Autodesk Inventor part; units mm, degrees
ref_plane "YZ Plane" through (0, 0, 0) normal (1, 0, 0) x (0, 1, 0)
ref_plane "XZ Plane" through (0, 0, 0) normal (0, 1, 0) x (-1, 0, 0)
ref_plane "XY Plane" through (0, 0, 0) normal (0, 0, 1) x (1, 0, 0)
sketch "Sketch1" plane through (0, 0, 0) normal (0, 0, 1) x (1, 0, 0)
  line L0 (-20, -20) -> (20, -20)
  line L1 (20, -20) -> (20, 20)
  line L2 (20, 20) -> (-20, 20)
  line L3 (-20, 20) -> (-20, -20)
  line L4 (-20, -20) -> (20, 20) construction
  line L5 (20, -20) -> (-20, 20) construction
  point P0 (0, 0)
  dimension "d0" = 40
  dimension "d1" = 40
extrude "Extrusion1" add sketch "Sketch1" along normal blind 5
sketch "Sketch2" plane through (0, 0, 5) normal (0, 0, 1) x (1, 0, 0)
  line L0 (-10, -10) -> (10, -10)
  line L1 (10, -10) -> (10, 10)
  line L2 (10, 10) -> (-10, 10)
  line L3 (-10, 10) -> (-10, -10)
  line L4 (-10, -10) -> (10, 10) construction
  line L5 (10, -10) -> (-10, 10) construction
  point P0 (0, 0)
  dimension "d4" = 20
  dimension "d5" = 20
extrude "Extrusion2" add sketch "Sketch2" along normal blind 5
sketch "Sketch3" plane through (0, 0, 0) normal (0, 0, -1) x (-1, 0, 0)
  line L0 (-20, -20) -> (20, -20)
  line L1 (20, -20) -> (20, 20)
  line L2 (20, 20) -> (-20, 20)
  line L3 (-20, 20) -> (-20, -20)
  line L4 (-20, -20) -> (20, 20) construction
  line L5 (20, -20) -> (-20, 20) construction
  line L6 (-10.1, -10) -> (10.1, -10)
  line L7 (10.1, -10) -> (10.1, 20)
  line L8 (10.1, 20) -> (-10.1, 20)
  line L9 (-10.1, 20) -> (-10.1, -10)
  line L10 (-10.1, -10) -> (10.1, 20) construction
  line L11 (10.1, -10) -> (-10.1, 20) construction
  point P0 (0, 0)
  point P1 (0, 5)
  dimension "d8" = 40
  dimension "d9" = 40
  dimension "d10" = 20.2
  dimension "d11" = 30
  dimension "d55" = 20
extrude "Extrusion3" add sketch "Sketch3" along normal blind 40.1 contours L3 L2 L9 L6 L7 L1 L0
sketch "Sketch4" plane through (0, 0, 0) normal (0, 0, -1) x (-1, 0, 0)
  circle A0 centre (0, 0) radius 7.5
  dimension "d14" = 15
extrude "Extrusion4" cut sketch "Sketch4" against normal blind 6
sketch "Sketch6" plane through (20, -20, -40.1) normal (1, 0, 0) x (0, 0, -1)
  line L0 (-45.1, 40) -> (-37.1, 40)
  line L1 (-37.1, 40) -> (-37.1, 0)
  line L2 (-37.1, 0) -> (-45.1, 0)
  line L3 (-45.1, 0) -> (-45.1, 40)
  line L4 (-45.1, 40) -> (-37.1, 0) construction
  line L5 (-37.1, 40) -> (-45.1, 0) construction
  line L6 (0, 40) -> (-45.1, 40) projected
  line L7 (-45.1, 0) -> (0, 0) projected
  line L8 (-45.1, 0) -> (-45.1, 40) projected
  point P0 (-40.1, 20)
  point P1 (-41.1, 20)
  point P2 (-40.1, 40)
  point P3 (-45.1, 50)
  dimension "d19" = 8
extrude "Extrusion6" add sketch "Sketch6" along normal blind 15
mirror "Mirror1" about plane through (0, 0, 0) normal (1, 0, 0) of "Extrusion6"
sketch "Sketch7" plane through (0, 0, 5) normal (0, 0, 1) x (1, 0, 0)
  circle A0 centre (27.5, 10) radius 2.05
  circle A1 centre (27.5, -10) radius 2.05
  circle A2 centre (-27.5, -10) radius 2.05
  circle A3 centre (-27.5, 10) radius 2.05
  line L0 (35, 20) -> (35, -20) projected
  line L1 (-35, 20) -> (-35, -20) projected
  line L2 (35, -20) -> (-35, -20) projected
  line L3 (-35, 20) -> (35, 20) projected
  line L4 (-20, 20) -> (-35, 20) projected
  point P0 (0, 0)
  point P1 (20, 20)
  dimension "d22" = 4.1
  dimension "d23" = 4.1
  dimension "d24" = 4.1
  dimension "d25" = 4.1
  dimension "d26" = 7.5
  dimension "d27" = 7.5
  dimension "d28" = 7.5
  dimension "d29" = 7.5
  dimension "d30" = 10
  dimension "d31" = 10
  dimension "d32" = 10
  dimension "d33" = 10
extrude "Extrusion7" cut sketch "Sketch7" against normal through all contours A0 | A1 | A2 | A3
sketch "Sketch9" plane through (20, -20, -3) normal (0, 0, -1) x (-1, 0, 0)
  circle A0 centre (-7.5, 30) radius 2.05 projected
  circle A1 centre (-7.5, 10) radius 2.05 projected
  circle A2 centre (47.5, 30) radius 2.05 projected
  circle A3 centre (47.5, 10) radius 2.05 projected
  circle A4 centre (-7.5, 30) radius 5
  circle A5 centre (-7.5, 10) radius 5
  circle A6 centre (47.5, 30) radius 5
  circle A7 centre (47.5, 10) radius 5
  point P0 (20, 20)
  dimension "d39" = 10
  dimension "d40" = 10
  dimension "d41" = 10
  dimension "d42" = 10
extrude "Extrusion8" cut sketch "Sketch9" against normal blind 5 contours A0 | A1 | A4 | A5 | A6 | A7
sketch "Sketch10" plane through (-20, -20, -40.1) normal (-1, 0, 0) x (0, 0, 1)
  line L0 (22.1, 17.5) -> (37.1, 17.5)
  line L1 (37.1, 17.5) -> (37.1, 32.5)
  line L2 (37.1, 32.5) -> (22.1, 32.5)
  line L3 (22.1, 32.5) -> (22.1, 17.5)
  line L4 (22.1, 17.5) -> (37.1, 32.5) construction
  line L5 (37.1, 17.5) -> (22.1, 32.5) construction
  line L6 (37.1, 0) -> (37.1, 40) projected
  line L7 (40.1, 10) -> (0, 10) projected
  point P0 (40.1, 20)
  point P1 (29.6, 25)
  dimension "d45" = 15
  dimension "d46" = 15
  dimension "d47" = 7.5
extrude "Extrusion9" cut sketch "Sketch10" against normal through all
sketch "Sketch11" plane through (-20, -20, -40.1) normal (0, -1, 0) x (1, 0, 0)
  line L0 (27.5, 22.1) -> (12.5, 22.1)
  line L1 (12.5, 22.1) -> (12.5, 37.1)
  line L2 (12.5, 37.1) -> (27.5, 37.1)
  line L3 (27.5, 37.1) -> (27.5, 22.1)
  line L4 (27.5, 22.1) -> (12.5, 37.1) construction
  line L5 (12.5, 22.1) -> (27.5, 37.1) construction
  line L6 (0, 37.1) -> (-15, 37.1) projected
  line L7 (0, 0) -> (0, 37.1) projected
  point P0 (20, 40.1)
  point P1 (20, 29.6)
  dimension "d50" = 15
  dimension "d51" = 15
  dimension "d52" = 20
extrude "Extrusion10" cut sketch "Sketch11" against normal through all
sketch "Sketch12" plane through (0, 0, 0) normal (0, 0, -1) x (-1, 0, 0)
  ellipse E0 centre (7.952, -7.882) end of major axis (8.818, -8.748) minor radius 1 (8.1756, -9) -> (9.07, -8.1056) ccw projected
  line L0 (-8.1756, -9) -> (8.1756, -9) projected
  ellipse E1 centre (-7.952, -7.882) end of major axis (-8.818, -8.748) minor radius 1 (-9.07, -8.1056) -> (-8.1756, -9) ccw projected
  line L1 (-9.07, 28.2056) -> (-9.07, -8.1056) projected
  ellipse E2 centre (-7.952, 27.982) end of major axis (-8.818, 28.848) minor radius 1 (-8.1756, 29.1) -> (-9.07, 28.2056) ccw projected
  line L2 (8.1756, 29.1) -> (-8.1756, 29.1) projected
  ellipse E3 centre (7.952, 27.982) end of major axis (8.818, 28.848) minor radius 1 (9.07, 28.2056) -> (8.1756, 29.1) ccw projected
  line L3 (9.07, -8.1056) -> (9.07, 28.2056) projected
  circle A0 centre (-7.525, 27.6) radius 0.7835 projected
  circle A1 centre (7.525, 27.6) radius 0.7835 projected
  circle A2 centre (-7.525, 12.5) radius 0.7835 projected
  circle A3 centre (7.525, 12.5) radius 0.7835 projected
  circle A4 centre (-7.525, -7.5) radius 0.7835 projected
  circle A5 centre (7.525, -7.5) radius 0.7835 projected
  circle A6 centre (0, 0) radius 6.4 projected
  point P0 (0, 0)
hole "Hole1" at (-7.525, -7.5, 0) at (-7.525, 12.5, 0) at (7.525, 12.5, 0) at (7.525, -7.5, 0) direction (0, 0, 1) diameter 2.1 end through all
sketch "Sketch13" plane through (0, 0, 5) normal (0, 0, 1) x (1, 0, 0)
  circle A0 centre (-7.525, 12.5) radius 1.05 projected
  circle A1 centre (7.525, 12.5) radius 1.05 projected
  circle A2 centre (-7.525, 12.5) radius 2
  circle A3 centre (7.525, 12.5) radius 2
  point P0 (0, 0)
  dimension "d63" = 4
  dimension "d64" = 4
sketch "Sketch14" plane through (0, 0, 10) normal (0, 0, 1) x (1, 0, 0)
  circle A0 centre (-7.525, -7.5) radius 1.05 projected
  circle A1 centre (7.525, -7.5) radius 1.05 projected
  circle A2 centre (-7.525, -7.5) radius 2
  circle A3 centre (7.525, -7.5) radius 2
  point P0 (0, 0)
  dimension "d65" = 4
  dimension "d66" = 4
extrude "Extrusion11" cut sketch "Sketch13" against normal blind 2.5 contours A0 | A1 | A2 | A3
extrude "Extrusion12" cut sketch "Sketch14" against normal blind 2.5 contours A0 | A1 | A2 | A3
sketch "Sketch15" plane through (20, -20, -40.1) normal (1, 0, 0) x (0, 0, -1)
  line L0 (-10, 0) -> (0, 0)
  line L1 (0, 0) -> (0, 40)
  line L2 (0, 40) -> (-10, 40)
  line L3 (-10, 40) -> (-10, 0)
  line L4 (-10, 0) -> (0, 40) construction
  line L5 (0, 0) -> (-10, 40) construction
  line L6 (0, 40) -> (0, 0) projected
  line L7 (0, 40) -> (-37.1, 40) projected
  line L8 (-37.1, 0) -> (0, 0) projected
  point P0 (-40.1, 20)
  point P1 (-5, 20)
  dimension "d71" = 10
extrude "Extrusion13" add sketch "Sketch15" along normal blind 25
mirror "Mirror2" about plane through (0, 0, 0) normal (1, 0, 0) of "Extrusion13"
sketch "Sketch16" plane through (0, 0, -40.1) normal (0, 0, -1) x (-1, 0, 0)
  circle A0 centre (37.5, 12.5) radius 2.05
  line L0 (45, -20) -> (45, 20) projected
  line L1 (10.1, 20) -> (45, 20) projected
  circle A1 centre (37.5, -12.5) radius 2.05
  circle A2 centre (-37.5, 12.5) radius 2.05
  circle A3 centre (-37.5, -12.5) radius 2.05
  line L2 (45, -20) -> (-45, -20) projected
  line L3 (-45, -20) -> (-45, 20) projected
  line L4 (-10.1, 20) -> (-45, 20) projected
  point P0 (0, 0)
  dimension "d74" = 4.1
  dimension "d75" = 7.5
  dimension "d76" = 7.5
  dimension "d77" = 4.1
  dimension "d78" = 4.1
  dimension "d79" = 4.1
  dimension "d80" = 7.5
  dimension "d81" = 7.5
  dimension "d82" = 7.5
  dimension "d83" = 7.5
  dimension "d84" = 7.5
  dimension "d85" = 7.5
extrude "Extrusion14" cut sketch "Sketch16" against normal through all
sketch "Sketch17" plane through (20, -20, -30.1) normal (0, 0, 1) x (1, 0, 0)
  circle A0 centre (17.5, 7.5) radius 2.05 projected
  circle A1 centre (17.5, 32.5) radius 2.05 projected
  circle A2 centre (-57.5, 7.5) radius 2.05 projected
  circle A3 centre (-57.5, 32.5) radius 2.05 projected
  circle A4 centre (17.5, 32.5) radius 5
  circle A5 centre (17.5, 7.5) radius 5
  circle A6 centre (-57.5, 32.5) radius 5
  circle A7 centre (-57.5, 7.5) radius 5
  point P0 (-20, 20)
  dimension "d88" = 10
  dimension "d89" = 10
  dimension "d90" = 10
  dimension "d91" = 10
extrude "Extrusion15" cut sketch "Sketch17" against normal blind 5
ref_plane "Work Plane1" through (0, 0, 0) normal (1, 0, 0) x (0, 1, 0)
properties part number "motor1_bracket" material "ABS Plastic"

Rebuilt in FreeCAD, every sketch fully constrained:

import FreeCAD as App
import Part
import Sketcher

V = App.Vector

doc = App.newDocument("Part")
params = doc.addObject("Spreadsheet::Sheet", "Params")
for row, (alias, value) in enumerate([
    ("sketch1_width", "40 mm"),
    ("pad1_length", "5 mm"),
    ("sketch2_width", "20 mm"),
    ("pad2_length", "5 mm"),
    ("sketch3_width", "40 mm"),
    ("sketch3_height", "30 mm"),
    ("sketch3_width2", "20.2 mm"),
    ("pad3_length", "40.1 mm"),
    ("sketch4_diameter", "15 mm"),
    ("pocket1_length", "6 mm"),
    ("sketch5_height", "8 mm"),
    ("sketch5_width", "40 mm"),
    ("pad4_length", "15 mm"),
    ("sketch6_diameter", "4.1 mm"),
    ("sketch7_diameter", "10 mm"),
    ("sketch7_diameter2", "4.1 mm"),
    ("pocket3_length", "5 mm"),
    ("sketch8_width", "15 mm"),
    ("sketch9_width", "15 mm"),
    ("sketch10_diameter", "2.1 mm"),
    ("hole_diameter", "2.1 mm"),
    ("sketch11_diameter", "4 mm"),
    ("pocket6_length", "2.5 mm"),
    ("sketch12_diameter", "4 mm"),
    ("pocket7_length", "2.5 mm"),
    ("sketch13_height", "10 mm"),
    ("sketch13_width", "40 mm"),
    ("pad5_length", "25 mm"),
    ("sketch14_diameter", "4.1 mm"),
    ("sketch15_diameter", "10 mm"),
    ("sketch15_diameter2", "4.1 mm"),
    ("pocket9_length", "5 mm"),
], start=1):
    params.set(f"A{row}", alias)
    params.set(f"B{row}", "=" + value)
    params.setAlias(f"B{row}", alias)

body = doc.addObject("PartDesign::Body", "Body")

# Sketch on XY plane
sketch1 = doc.addObject("Sketcher::SketchObject", "Sketch")
body.addObject(sketch1)
sketch1.AttachmentSupport = (doc.XY_Plane, [""])
sketch1.MapMode = "FlatFace"
sketch1.addGeometry(Part.LineSegment(V(-20, 20, 0), V(-20, -20, 0)), False)
sketch1.addGeometry(Part.LineSegment(V(-20, -20, 0), V(20, -20, 0)), False)
sketch1.addGeometry(Part.LineSegment(V(20, -20, 0), V(20, 20, 0)), False)
sketch1.addGeometry(Part.LineSegment(V(20, 20, 0), V(-20, 20, 0)), False)
sketch1.addConstraint(Sketcher.Constraint("Coincident", 0, 2, 1, 1))
sketch1.addConstraint(Sketcher.Constraint("Coincident", 1, 2, 2, 1))
sketch1.addConstraint(Sketcher.Constraint("Coincident", 2, 2, 3, 1))
sketch1.addConstraint(Sketcher.Constraint("Coincident", 3, 2, 0, 1))
sketch1.addConstraint(Sketcher.Constraint("Vertical", 0))
sketch1.addConstraint(Sketcher.Constraint("Horizontal", 1))
sketch1.addConstraint(Sketcher.Constraint("Vertical", 2))
sketch1.addConstraint(Sketcher.Constraint("Horizontal", 3))
sketch1.addConstraint(Sketcher.Constraint("Symmetric", 0, 2, 2, 2, -1, 1))
sketch1.addConstraint(Sketcher.Constraint("Equal", 3, 0))
sketch1.addConstraint(Sketcher.Constraint("DistanceX", 1, 1, 1, 2, 40.0))
sketch1.setExpression("Constraints[10]", "Params.sketch1_width")
pad1 = doc.addObject("PartDesign::Pad", "Pad")
body.addObject(pad1)
pad1.Profile = sketch1
pad1.setExpression("Length", "Params.pad1_length")

# Sketch on XY plane
sketch2 = doc.addObject("Sketcher::SketchObject", "Sketch001")
body.addObject(sketch2)
sketch2.AttachmentSupport = (doc.XY_Plane, [""])
sketch2.MapMode = "FlatFace"
sketch2.AttachmentOffset = App.Placement(V(0, 0, 5), App.Rotation())
sketch2.addGeometry(Part.LineSegment(V(-10, 10, 0), V(-10, -10, 0)), False)
sketch2.addGeometry(Part.LineSegment(V(-10, -10, 0), V(10, -10, 0)), False)
sketch2.addGeometry(Part.LineSegment(V(10, -10, 0), V(10, 10, 0)), False)
sketch2.addGeometry(Part.LineSegment(V(10, 10, 0), V(-10, 10, 0)), False)
sketch2.addConstraint(Sketcher.Constraint("Coincident", 0, 2, 1, 1))
sketch2.addConstraint(Sketcher.Constraint("Coincident", 1, 2, 2, 1))
sketch2.addConstraint(Sketcher.Constraint("Coincident", 2, 2, 3, 1))
sketch2.addConstraint(Sketcher.Constraint("Coincident", 3, 2, 0, 1))
sketch2.addConstraint(Sketcher.Constraint("Vertical", 0))
sketch2.addConstraint(Sketcher.Constraint("Horizontal", 1))
sketch2.addConstraint(Sketcher.Constraint("Vertical", 2))
sketch2.addConstraint(Sketcher.Constraint("Horizontal", 3))
sketch2.addConstraint(Sketcher.Constraint("Symmetric", 0, 2, 2, 2, -1, 1))
sketch2.addConstraint(Sketcher.Constraint("Equal", 3, 0))
sketch2.addConstraint(Sketcher.Constraint("DistanceX", 1, 1, 1, 2, 20.0))
sketch2.setExpression("Constraints[10]", "Params.sketch2_width")
pad2 = doc.addObject("PartDesign::Pad", "Pad001")
body.addObject(pad2)
pad2.Profile = sketch2
pad2.setExpression("Length", "Params.pad2_length")

# Sketch on XY plane
sketch3 = doc.addObject("Sketcher::SketchObject", "Sketch002")
body.addObject(sketch3)
sketch3.AttachmentSupport = (doc.XY_Plane, [""])
sketch3.MapMode = "FlatFace"
sketch3.addGeometry(Part.LineSegment(V(20, 20, 0), V(20, -20, 0)), False)
sketch3.addGeometry(Part.LineSegment(V(20, -20, 0), V(-20, -20, 0)), False)
sketch3.addGeometry(Part.LineSegment(V(-20, -20, 0), V(-20, 20, 0)), False)
sketch3.addGeometry(Part.LineSegment(V(-20, 20, 0), V(-10, 20, 0)), False)
sketch3.addGeometry(Part.LineSegment(V(-10, 20, 0), V(-10, -10, 0)), False)
sketch3.addGeometry(Part.LineSegment(V(-10, -10, 0), V(10, -10, 0)), False)
sketch3.addGeometry(Part.LineSegment(V(10, -10, 0), V(10, 20, 0)), False)
sketch3.addGeometry(Part.LineSegment(V(10, 20, 0), V(20, 20, 0)), False)
sketch3.addConstraint(Sketcher.Constraint("Coincident", 0, 2, 1, 1))
sketch3.addConstraint(Sketcher.Constraint("Coincident", 1, 2, 2, 1))
sketch3.addConstraint(Sketcher.Constraint("Coincident", 2, 2, 3, 1))
sketch3.addConstraint(Sketcher.Constraint("Coincident", 3, 2, 4, 1))
sketch3.addConstraint(Sketcher.Constraint("Coincident", 4, 2, 5, 1))
sketch3.addConstraint(Sketcher.Constraint("Coincident", 5, 2, 6, 1))
sketch3.addConstraint(Sketcher.Constraint("Coincident", 6, 2, 7, 1))
sketch3.addConstraint(Sketcher.Constraint("Coincident", 7, 2, 0, 1))
sketch3.addConstraint(Sketcher.Constraint("Vertical", 0))
sketch3.addConstraint(Sketcher.Constraint("Horizontal", 1))
sketch3.addConstraint(Sketcher.Constraint("Vertical", 2))
sketch3.addConstraint(Sketcher.Constraint("Horizontal", 3))
sketch3.addConstraint(Sketcher.Constraint("Vertical", 4))
sketch3.addConstraint(Sketcher.Constraint("Horizontal", 5))
sketch3.addConstraint(Sketcher.Constraint("Vertical", 6))
sketch3.addConstraint(Sketcher.Constraint("Horizontal", 7))
sketch3.addConstraint(Sketcher.Constraint("Symmetric", 0, 2, 2, 2, -1, 1))
sketch3.addConstraint(Sketcher.Constraint("Symmetric", 3, 2, 6, 2, -2))
sketch3.addConstraint(Sketcher.Constraint("Equal", 1, 0))
sketch3.addConstraint(Sketcher.Constraint("DistanceX", 1, 2, 1, 1, 40.0))
sketch3.addConstraint(Sketcher.Constraint("DistanceY", 4, 2, 4, 1, 30.0))
sketch3.addConstraint(Sketcher.Constraint("DistanceX", 5, 1, 5, 2, 20.2))
sketch3.setExpression("Constraints[19]", "Params.sketch3_width")
sketch3.setExpression("Constraints[20]", "Params.sketch3_height")
sketch3.setExpression("Constraints[21]", "Params.sketch3_width2")
pad3 = doc.addObject("PartDesign::Pad", "Pad002")
body.addObject(pad3)
pad3.Profile = sketch3
pad3.setExpression("Length", "Params.pad3_length")
pad3.Reversed = True

# Sketch on XY plane
sketch4 = doc.addObject("Sketcher::SketchObject", "Sketch003")
body.addObject(sketch4)
sketch4.AttachmentSupport = (doc.XY_Plane, [""])
sketch4.MapMode = "FlatFace"
sketch4.addGeometry(Part.Circle(V(0, 0, 0), V(0, 0, 1), 8), False)
sketch4.addConstraint(Sketcher.Constraint("Coincident", 0, 3, -1, 1))
sketch4.addConstraint(Sketcher.Constraint("Diameter", 0, 15.0))
sketch4.setExpression("Constraints[1]", "Params.sketch4_diameter")
pocket1 = doc.addObject("PartDesign::Pocket", "Pocket")
body.addObject(pocket1)
pocket1.Profile = sketch4
pocket1.setExpression("Length", "Params.pocket1_length")
pocket1.Reversed = True

# Sketch on YZ plane
sketch5 = doc.addObject("Sketcher::SketchObject", "Sketch004")
body.addObject(sketch5)
sketch5.AttachmentSupport = (doc.YZ_Plane, [""])
sketch5.MapMode = "FlatFace"
sketch5.AttachmentOffset = App.Placement(V(0, 0, 20), App.Rotation())
sketch5.addGeometry(Part.LineSegment(V(20, -3, 0), V(20, 5, 0)), False)
sketch5.addGeometry(Part.LineSegment(V(20, 5, 0), V(-20, 5, 0)), False)
sketch5.addGeometry(Part.LineSegment(V(-20, 5, 0), V(-20, -3, 0)), False)
sketch5.addGeometry(Part.LineSegment(V(-20, -3, 0), V(20, -3, 0)), False)
sketch5.addConstraint(Sketcher.Constraint("Coincident", 0, 2, 1, 1))
sketch5.addConstraint(Sketcher.Constraint("Coincident", 1, 2, 2, 1))
sketch5.addConstraint(Sketcher.Constraint("Coincident", 2, 2, 3, 1))
sketch5.addConstraint(Sketcher.Constraint("Coincident", 3, 2, 0, 1))
sketch5.addConstraint(Sketcher.Constraint("Vertical", 0))
sketch5.addConstraint(Sketcher.Constraint("Horizontal", 1))
sketch5.addConstraint(Sketcher.Constraint("Vertical", 2))
sketch5.addConstraint(Sketcher.Constraint("Horizontal", 3))
sketch5.addConstraint(Sketcher.Constraint("DistanceY", 0, 1, 0, 2, 8.0))
sketch5.addConstraint(Sketcher.Constraint("DistanceX", 1, 2, 1, 1, 40.0))
sketch5.addConstraint(Sketcher.Constraint("DistanceX", -1, 1, 0, 2, 20.0))
sketch5.addConstraint(Sketcher.Constraint("DistanceY", -1, 1, 0, 2, 5.0))
sketch5.setExpression("Constraints[8]", "Params.sketch5_height")
sketch5.setExpression("Constraints[9]", "Params.sketch5_width")
pad4 = doc.addObject("PartDesign::Pad", "Pad003")
body.addObject(pad4)
pad4.Profile = sketch5
pad4.setExpression("Length", "Params.pad4_length")
doc.recompute()

mirrored = doc.addObject("PartDesign::Mirrored", "Mirrored")
body.addObject(mirrored)
mirrored.Originals = [pad4]
mirrored.MirrorPlane = (doc.YZ_Plane, [""])
body.Tip = mirrored

# Sketch on XY plane
sketch6 = doc.addObject("Sketcher::SketchObject", "Sketch005")
body.addObject(sketch6)
sketch6.AttachmentSupport = (doc.XY_Plane, [""])
sketch6.MapMode = "FlatFace"
sketch6.AttachmentOffset = App.Placement(V(0, 0, 5), App.Rotation())
sketch6.addGeometry(Part.Circle(V(27.5, 10, 0), V(0, 0, 1), 2), False)
sketch6.addGeometry(Part.Circle(V(27.5, -10, 0), V(0, 0, 1), 2), False)
sketch6.addGeometry(Part.Circle(V(-27.5, -10, 0), V(0, 0, 1), 2), False)
sketch6.addGeometry(Part.Circle(V(-27.5, 10, 0), V(0, 0, 1), 2), False)
sketch6.addConstraint(Sketcher.Constraint("Equal", 0, 1))
sketch6.addConstraint(Sketcher.Constraint("Equal", 1, 2))
sketch6.addConstraint(Sketcher.Constraint("Equal", 2, 3))
sketch6.addConstraint(Sketcher.Constraint("Symmetric", 0, 3, 2, 3, -1, 1))
sketch6.addConstraint(Sketcher.Constraint("Symmetric", 1, 3, 3, 3, -1, 1))
sketch6.addConstraint(Sketcher.Constraint("Symmetric", 1, 3, 2, 3, -2))
sketch6.addConstraint(Sketcher.Constraint("Diameter", 0, 4.1))
sketch6.addConstraint(Sketcher.Constraint("DistanceY", -1, 1, 0, 3, 10.0))
sketch6.addConstraint(Sketcher.Constraint("DistanceX", 2, 3, 1, 3, 55.0))
sketch6.setExpression("Constraints[6]", "Params.sketch6_diameter")
pocket2 = doc.addObject("PartDesign::Pocket", "Pocket001")
body.addObject(pocket2)
pocket2.Profile = sketch6
pocket2.Type = "ThroughAll"

# Sketch on XY plane
sketch7 = doc.addObject("Sketcher::SketchObject", "Sketch006")
body.addObject(sketch7)
sketch7.AttachmentSupport = (doc.XY_Plane, [""])
sketch7.MapMode = "FlatFace"
sketch7.AttachmentOffset = App.Placement(V(0, 0, -3), App.Rotation())
sketch7.addGeometry(Part.Circle(V(27.5, 10, 0), V(0, 0, 1), 5), False)
sketch7.addGeometry(Part.Circle(V(27.5, -10, 0), V(0, 0, 1), 5), False)
sketch7.addGeometry(Part.Circle(V(-27.5, 10, 0), V(0, 0, 1), 5), False)
sketch7.addGeometry(Part.Circle(V(-27.5, 10, 0), V(0, 0, 1), 2), False)
sketch7.addGeometry(Part.Circle(V(-27.5, -10, 0), V(0, 0, 1), 5), False)
sketch7.addGeometry(Part.Circle(V(-27.5, -10, 0), V(0, 0, 1), 2), False)
sketch7.addConstraint(Sketcher.Constraint("Coincident", 3, 3, 2, 3))
sketch7.addConstraint(Sketcher.Constraint("Coincident", 5, 3, 4, 3))
sketch7.addConstraint(Sketcher.Constraint("Equal", 0, 1))
sketch7.addConstraint(Sketcher.Constraint("Equal", 1, 2))
sketch7.addConstraint(Sketcher.Constraint("Equal", 2, 4))
sketch7.addConstraint(Sketcher.Constraint("Equal", 3, 5))
sketch7.addConstraint(Sketcher.Constraint("Symmetric", 1, 3, 2, 3, -1, 1))
sketch7.addConstraint(Sketcher.Constraint("Symmetric", 0, 3, 4, 3, -1, 1))
sketch7.addConstraint(Sketcher.Constraint("Symmetric", 0, 3, 2, 3, -2))
sketch7.addConstraint(Sketcher.Constraint("Diameter", 0, 10.0))
sketch7.addConstraint(Sketcher.Constraint("DistanceY", -1, 1, 0, 3, 10.0))
sketch7.addConstraint(Sketcher.Constraint("Diameter", 3, 4.1))
sketch7.addConstraint(Sketcher.Constraint("DistanceX", 2, 3, 0, 3, 55.0))
sketch7.setExpression("Constraints[9]", "Params.sketch7_diameter")
sketch7.setExpression("Constraints[11]", "Params.sketch7_diameter2")
pocket3 = doc.addObject("PartDesign::Pocket", "Pocket002")
body.addObject(pocket3)
pocket3.Profile = sketch7
pocket3.setExpression("Length", "Params.pocket3_length")
pocket3.Reversed = True

# Sketch on YZ plane
sketch8 = doc.addObject("Sketcher::SketchObject", "Sketch007")
body.addObject(sketch8)
sketch8.AttachmentSupport = (doc.YZ_Plane, [""])
sketch8.MapMode = "FlatFace"
sketch8.AttachmentOffset = App.Placement(V(0, 0, -20), App.Rotation())
sketch8.addGeometry(Part.LineSegment(V(12, -18, 0), V(-2, -18, 0)), False)
sketch8.addGeometry(Part.LineSegment(V(-2, -18, 0), V(-2, -3, 0)), False)
sketch8.addGeometry(Part.LineSegment(V(-2, -3, 0), V(12, -3, 0)), False)
sketch8.addGeometry(Part.LineSegment(V(12, -3, 0), V(12, -18, 0)), False)
sketch8.addConstraint(Sketcher.Constraint("Coincident", 0, 2, 1, 1))
sketch8.addConstraint(Sketcher.Constraint("Coincident", 1, 2, 2, 1))
sketch8.addConstraint(Sketcher.Constraint("Coincident", 2, 2, 3, 1))
sketch8.addConstraint(Sketcher.Constraint("Coincident", 3, 2, 0, 1))
sketch8.addConstraint(Sketcher.Constraint("Horizontal", 0))
sketch8.addConstraint(Sketcher.Constraint("Vertical", 1))
sketch8.addConstraint(Sketcher.Constraint("Horizontal", 2))
sketch8.addConstraint(Sketcher.Constraint("Vertical", 3))
sketch8.addConstraint(Sketcher.Constraint("Equal", 2, 1))
sketch8.addConstraint(Sketcher.Constraint("DistanceX", 0, 2, 0, 1, 15.0))
sketch8.addConstraint(Sketcher.Constraint("DistanceY", 0, 2, -1, 1, 18.0))
sketch8.addConstraint(Sketcher.Constraint("DistanceX", 0, 2, -1, 1, 2.5))
sketch8.setExpression("Constraints[9]", "Params.sketch8_width")
pocket4 = doc.addObject("PartDesign::Pocket", "Pocket003")
body.addObject(pocket4)
pocket4.Profile = sketch8
pocket4.Type = "ThroughAll"
pocket4.Reversed = True

# Sketch on XZ plane
sketch9 = doc.addObject("Sketcher::SketchObject", "Sketch008")
body.addObject(sketch9)
sketch9.AttachmentSupport = (doc.XZ_Plane, [""])
sketch9.MapMode = "FlatFace"
sketch9.AttachmentOffset = App.Placement(V(0, 0, 20), App.Rotation())
sketch9.addGeometry(Part.LineSegment(V(-8, -18, 0), V(8, -18, 0)), False)
sketch9.addGeometry(Part.LineSegment(V(8, -18, 0), V(8, -3, 0)), False)
sketch9.addGeometry(Part.LineSegment(V(8, -3, 0), V(-8, -3, 0)), False)
sketch9.addGeometry(Part.LineSegment(V(-8, -3, 0), V(-8, -18, 0)), False)
sketch9.addConstraint(Sketcher.Constraint("Coincident", 0, 2, 1, 1))
sketch9.addConstraint(Sketcher.Constraint("Coincident", 1, 2, 2, 1))
sketch9.addConstraint(Sketcher.Constraint("Coincident", 2, 2, 3, 1))
sketch9.addConstraint(Sketcher.Constraint("Coincident", 3, 2, 0, 1))
sketch9.addConstraint(Sketcher.Constraint("Horizontal", 0))
sketch9.addConstraint(Sketcher.Constraint("Vertical", 1))
sketch9.addConstraint(Sketcher.Constraint("Horizontal", 2))
sketch9.addConstraint(Sketcher.Constraint("Vertical", 3))
sketch9.addConstraint(Sketcher.Constraint("Equal", 2, 1))
sketch9.addConstraint(Sketcher.Constraint("DistanceX", 0, 1, 0, 2, 15.0))
sketch9.addConstraint(Sketcher.Constraint("DistanceY", 0, 2, -1, 1, 18.0))
sketch9.addConstraint(Sketcher.Constraint("DistanceX", -1, 1, 0, 2, 7.5))
sketch9.setExpression("Constraints[9]", "Params.sketch9_width")
pocket5 = doc.addObject("PartDesign::Pocket", "Pocket004")
body.addObject(pocket5)
pocket5.Profile = sketch9
pocket5.Type = "ThroughAll"

# Sketch on XY plane
sketch10 = doc.addObject("Sketcher::SketchObject", "Sketch009")
body.addObject(sketch10)
sketch10.AttachmentSupport = (doc.XY_Plane, [""])
sketch10.MapMode = "FlatFace"
sketch10.addGeometry(Part.Circle(V(-7.5, -7.5, 0), V(0, 0, 1), 1.1), False)
sketch10.addGeometry(Part.Circle(V(-7.5, 12.5, 0), V(0, 0, 1), 1.1), False)
sketch10.addGeometry(Part.Circle(V(7.5, 12.5, 0), V(0, 0, 1), 1.1), False)
sketch10.addGeometry(Part.Circle(V(7.5, -7.5, 0), V(0, 0, 1), 1.1), False)
sketch10.addConstraint(Sketcher.Constraint("Equal", 0, 1))
sketch10.addConstraint(Sketcher.Constraint("Equal", 1, 2))
sketch10.addConstraint(Sketcher.Constraint("Equal", 2, 3))
sketch10.addConstraint(Sketcher.Constraint("Symmetric", 1, 3, 2, 3, -2))
sketch10.addConstraint(Sketcher.Constraint("Symmetric", 0, 3, 3, 3, -2))
sketch10.addConstraint(Sketcher.Constraint("Vertical", 0, 3, 1, 3))
sketch10.addConstraint(Sketcher.Constraint("Diameter", 0, 2.1))
sketch10.addConstraint(Sketcher.Constraint("DistanceY", 0, 3, 1, 3, 20.0))
sketch10.addConstraint(Sketcher.Constraint("DistanceY", 0, 3, -1, 1, 7.5))
sketch10.addConstraint(Sketcher.Constraint("DistanceX", 1, 3, 2, 3, 15.05))
sketch10.setExpression("Constraints[6]", "Params.sketch10_diameter")
doc.recompute()
hole = doc.addObject("PartDesign::Hole", "Hole")
body.addObject(hole)
hole.Profile = sketch10
hole.ThreadType = "None"
hole.setExpression("Diameter", "Params.hole_diameter")
hole.DepthType = "ThroughAll"
hole.Reversed = True

# Sketch on XY plane
sketch11 = doc.addObject("Sketcher::SketchObject", "Sketch010")
body.addObject(sketch11)
sketch11.AttachmentSupport = (doc.XY_Plane, [""])
sketch11.MapMode = "FlatFace"
sketch11.AttachmentOffset = App.Placement(V(0, 0, 5), App.Rotation())
sketch11.addGeometry(Part.Circle(V(-7.5, 12.5, 0), V(0, 0, 1), 2), False)
sketch11.addGeometry(Part.Circle(V(7.5, 12.5, 0), V(0, 0, 1), 2), False)
sketch11.addConstraint(Sketcher.Constraint("Equal", 0, 1))
sketch11.addConstraint(Sketcher.Constraint("Symmetric", 0, 3, 1, 3, -2))
sketch11.addConstraint(Sketcher.Constraint("Diameter", 0, 4.0))
sketch11.addConstraint(Sketcher.Constraint("DistanceY", -1, 1, 0, 3, 12.5))
sketch11.addConstraint(Sketcher.Constraint("DistanceX", 0, 3, 1, 3, 15.05))
sketch11.setExpression("Constraints[2]", "Params.sketch11_diameter")
pocket6 = doc.addObject("PartDesign::Pocket", "Pocket005")
body.addObject(pocket6)
pocket6.Profile = sketch11
pocket6.setExpression("Length", "Params.pocket6_length")

# Sketch on XY plane
sketch12 = doc.addObject("Sketcher::SketchObject", "Sketch011")
body.addObject(sketch12)
sketch12.AttachmentSupport = (doc.XY_Plane, [""])
sketch12.MapMode = "FlatFace"
sketch12.AttachmentOffset = App.Placement(V(0, 0, 10), App.Rotation())
sketch12.addGeometry(Part.Circle(V(-7.5, -7.5, 0), V(0, 0, 1), 2), False)
sketch12.addGeometry(Part.Circle(V(7.5, -7.5, 0), V(0, 0, 1), 2), False)
sketch12.addConstraint(Sketcher.Constraint("Equal", 0, 1))
sketch12.addConstraint(Sketcher.Constraint("Symmetric", 0, 3, 1, 3, -2))
sketch12.addConstraint(Sketcher.Constraint("Diameter", 0, 4.0))
sketch12.addConstraint(Sketcher.Constraint("DistanceY", 0, 3, -1, 1, 7.5))
sketch12.addConstraint(Sketcher.Constraint("DistanceX", 0, 3, 1, 3, 15.05))
sketch12.setExpression("Constraints[2]", "Params.sketch12_diameter")
pocket7 = doc.addObject("PartDesign::Pocket", "Pocket006")
body.addObject(pocket7)
pocket7.Profile = sketch12
pocket7.setExpression("Length", "Params.pocket7_length")

# Sketch on YZ plane
sketch13 = doc.addObject("Sketcher::SketchObject", "Sketch012")
body.addObject(sketch13)
sketch13.AttachmentSupport = (doc.YZ_Plane, [""])
sketch13.MapMode = "FlatFace"
sketch13.AttachmentOffset = App.Placement(V(0, 0, 20), App.Rotation())
sketch13.addGeometry(Part.LineSegment(V(20, -30, 0), V(-20, -30, 0)), False)
sketch13.addGeometry(Part.LineSegment(V(-20, -30, 0), V(-20, -40, 0)), False)
sketch13.addGeometry(Part.LineSegment(V(-20, -40, 0), V(20, -40, 0)), False)
sketch13.addGeometry(Part.LineSegment(V(20, -40, 0), V(20, -30, 0)), False)
sketch13.addConstraint(Sketcher.Constraint("Coincident", 0, 2, 1, 1))
sketch13.addConstraint(Sketcher.Constraint("Coincident", 1, 2, 2, 1))
sketch13.addConstraint(Sketcher.Constraint("Coincident", 2, 2, 3, 1))
sketch13.addConstraint(Sketcher.Constraint("Coincident", 3, 2, 0, 1))
sketch13.addConstraint(Sketcher.Constraint("Horizontal", 0))
sketch13.addConstraint(Sketcher.Constraint("Vertical", 1))
sketch13.addConstraint(Sketcher.Constraint("Horizontal", 2))
sketch13.addConstraint(Sketcher.Constraint("Vertical", 3))
sketch13.addConstraint(Sketcher.Constraint("DistanceY", 1, 2, 1, 1, 10.0))
sketch13.addConstraint(Sketcher.Constraint("DistanceX", 0, 2, 0, 1, 40.0))
sketch13.addConstraint(Sketcher.Constraint("DistanceX", 0, 2, -1, 1, 20.0))
sketch13.addConstraint(Sketcher.Constraint("DistanceY", 0, 2, -1, 1, 30.1))
sketch13.setExpression("Constraints[8]", "Params.sketch13_height")
sketch13.setExpression("Constraints[9]", "Params.sketch13_width")
pad5 = doc.addObject("PartDesign::Pad", "Pad004")
body.addObject(pad5)
pad5.Profile = sketch13
pad5.setExpression("Length", "Params.pad5_length")
doc.recompute()

mirrored2 = doc.addObject("PartDesign::Mirrored", "Mirrored001")
body.addObject(mirrored2)
mirrored2.Originals = [pad5]
mirrored2.MirrorPlane = (doc.YZ_Plane, [""])
body.Tip = mirrored2

# Sketch on XY plane
sketch14 = doc.addObject("Sketcher::SketchObject", "Sketch013")
body.addObject(sketch14)
sketch14.AttachmentSupport = (doc.XY_Plane, [""])
sketch14.MapMode = "FlatFace"
sketch14.AttachmentOffset = App.Placement(V(0, 0, -40.1), App.Rotation())
sketch14.addGeometry(Part.Circle(V(-37.5, 12.5, 0), V(0, 0, 1), 2), False)
sketch14.addGeometry(Part.Circle(V(-37.5, -12.5, 0), V(0, 0, 1), 2), False)
sketch14.addGeometry(Part.Circle(V(37.5, 12.5, 0), V(0, 0, 1), 2), False)
sketch14.addGeometry(Part.Circle(V(37.5, -12.5, 0), V(0, 0, 1), 2), False)
sketch14.addConstraint(Sketcher.Constraint("Equal", 0, 1))
sketch14.addConstraint(Sketcher.Constraint("Equal", 1, 2))
sketch14.addConstraint(Sketcher.Constraint("Equal", 2, 3))
sketch14.addConstraint(Sketcher.Constraint("Symmetric", 1, 3, 2, 3, -1, 1))
sketch14.addConstraint(Sketcher.Constraint("Symmetric", 0, 3, 3, 3, -1, 1))
sketch14.addConstraint(Sketcher.Constraint("Symmetric", 0, 3, 2, 3, -2))
sketch14.addConstraint(Sketcher.Constraint("Diameter", 0, 4.1))
sketch14.addConstraint(Sketcher.Constraint("DistanceY", 1, 3, 0, 3, 25.0))
sketch14.addConstraint(Sketcher.Constraint("DistanceX", 0, 3, 2, 3, 75.0))
sketch14.setExpression("Constraints[6]", "Params.sketch14_diameter")
pocket8 = doc.addObject("PartDesign::Pocket", "Pocket007")
body.addObject(pocket8)
pocket8.Profile = sketch14
pocket8.Type = "ThroughAll"
pocket8.Reversed = True

# Sketch on XY plane
sketch15 = doc.addObject("Sketcher::SketchObject", "Sketch014")
body.addObject(sketch15)
sketch15.AttachmentSupport = (doc.XY_Plane, [""])
sketch15.MapMode = "FlatFace"
sketch15.AttachmentOffset = App.Placement(V(0, 0, -30.1), App.Rotation())
sketch15.addGeometry(Part.Circle(V(37.5, 12.5, 0), V(0, 0, 1), 5), False)
sketch15.addGeometry(Part.Circle(V(37.5, 12.5, 0), V(0, 0, 1), 2), False)
sketch15.addGeometry(Part.Circle(V(37.5, -12.5, 0), V(0, 0, 1), 5), False)
sketch15.addGeometry(Part.Circle(V(37.5, -12.5, 0), V(0, 0, 1), 2), False)
sketch15.addGeometry(Part.Circle(V(-37.5, 12.5, 0), V(0, 0, 1), 5), False)
sketch15.addGeometry(Part.Circle(V(-37.5, 12.5, 0), V(0, 0, 1), 2), False)
sketch15.addGeometry(Part.Circle(V(-37.5, -12.5, 0), V(0, 0, 1), 5), False)
sketch15.addGeometry(Part.Circle(V(-37.5, -12.5, 0), V(0, 0, 1), 2), False)
sketch15.addConstraint(Sketcher.Constraint("Coincident", 1, 3, 0, 3))
sketch15.addConstraint(Sketcher.Constraint("Coincident", 3, 3, 2, 3))
sketch15.addConstraint(Sketcher.Constraint("Coincident", 5, 3, 4, 3))
sketch15.addConstraint(Sketcher.Constraint("Coincident", 7, 3, 6, 3))
sketch15.addConstraint(Sketcher.Constraint("Equal", 0, 2))
sketch15.addConstraint(Sketcher.Constraint("Equal", 1, 3))
sketch15.addConstraint(Sketcher.Constraint("Equal", 2, 4))
sketch15.addConstraint(Sketcher.Constraint("Equal", 3, 5))
sketch15.addConstraint(Sketcher.Constraint("Equal", 4, 6))
sketch15.addConstraint(Sketcher.Constraint("Equal", 5, 7))
sketch15.addConstraint(Sketcher.Constraint("Symmetric", 2, 3, 4, 3, -1, 1))
sketch15.addConstraint(Sketcher.Constraint("Symmetric", 0, 3, 6, 3, -1, 1))
sketch15.addConstraint(Sketcher.Constraint("Symmetric", 0, 3, 4, 3, -2))
sketch15.addConstraint(Sketcher.Constraint("Diameter", 0, 10.0))
sketch15.addConstraint(Sketcher.Constraint("Diameter", 1, 4.1))
sketch15.addConstraint(Sketcher.Constraint("DistanceY", 2, 3, 0, 3, 25.0))
sketch15.addConstraint(Sketcher.Constraint("DistanceX", 4, 3, 0, 3, 75.0))
sketch15.setExpression("Constraints[13]", "Params.sketch15_diameter")
sketch15.setExpression("Constraints[14]", "Params.sketch15_diameter2")
pocket9 = doc.addObject("PartDesign::Pocket", "Pocket008")
body.addObject(pocket9)
pocket9.Profile = sketch15
pocket9.setExpression("Length", "Params.pocket9_length")

doc.recompute()
